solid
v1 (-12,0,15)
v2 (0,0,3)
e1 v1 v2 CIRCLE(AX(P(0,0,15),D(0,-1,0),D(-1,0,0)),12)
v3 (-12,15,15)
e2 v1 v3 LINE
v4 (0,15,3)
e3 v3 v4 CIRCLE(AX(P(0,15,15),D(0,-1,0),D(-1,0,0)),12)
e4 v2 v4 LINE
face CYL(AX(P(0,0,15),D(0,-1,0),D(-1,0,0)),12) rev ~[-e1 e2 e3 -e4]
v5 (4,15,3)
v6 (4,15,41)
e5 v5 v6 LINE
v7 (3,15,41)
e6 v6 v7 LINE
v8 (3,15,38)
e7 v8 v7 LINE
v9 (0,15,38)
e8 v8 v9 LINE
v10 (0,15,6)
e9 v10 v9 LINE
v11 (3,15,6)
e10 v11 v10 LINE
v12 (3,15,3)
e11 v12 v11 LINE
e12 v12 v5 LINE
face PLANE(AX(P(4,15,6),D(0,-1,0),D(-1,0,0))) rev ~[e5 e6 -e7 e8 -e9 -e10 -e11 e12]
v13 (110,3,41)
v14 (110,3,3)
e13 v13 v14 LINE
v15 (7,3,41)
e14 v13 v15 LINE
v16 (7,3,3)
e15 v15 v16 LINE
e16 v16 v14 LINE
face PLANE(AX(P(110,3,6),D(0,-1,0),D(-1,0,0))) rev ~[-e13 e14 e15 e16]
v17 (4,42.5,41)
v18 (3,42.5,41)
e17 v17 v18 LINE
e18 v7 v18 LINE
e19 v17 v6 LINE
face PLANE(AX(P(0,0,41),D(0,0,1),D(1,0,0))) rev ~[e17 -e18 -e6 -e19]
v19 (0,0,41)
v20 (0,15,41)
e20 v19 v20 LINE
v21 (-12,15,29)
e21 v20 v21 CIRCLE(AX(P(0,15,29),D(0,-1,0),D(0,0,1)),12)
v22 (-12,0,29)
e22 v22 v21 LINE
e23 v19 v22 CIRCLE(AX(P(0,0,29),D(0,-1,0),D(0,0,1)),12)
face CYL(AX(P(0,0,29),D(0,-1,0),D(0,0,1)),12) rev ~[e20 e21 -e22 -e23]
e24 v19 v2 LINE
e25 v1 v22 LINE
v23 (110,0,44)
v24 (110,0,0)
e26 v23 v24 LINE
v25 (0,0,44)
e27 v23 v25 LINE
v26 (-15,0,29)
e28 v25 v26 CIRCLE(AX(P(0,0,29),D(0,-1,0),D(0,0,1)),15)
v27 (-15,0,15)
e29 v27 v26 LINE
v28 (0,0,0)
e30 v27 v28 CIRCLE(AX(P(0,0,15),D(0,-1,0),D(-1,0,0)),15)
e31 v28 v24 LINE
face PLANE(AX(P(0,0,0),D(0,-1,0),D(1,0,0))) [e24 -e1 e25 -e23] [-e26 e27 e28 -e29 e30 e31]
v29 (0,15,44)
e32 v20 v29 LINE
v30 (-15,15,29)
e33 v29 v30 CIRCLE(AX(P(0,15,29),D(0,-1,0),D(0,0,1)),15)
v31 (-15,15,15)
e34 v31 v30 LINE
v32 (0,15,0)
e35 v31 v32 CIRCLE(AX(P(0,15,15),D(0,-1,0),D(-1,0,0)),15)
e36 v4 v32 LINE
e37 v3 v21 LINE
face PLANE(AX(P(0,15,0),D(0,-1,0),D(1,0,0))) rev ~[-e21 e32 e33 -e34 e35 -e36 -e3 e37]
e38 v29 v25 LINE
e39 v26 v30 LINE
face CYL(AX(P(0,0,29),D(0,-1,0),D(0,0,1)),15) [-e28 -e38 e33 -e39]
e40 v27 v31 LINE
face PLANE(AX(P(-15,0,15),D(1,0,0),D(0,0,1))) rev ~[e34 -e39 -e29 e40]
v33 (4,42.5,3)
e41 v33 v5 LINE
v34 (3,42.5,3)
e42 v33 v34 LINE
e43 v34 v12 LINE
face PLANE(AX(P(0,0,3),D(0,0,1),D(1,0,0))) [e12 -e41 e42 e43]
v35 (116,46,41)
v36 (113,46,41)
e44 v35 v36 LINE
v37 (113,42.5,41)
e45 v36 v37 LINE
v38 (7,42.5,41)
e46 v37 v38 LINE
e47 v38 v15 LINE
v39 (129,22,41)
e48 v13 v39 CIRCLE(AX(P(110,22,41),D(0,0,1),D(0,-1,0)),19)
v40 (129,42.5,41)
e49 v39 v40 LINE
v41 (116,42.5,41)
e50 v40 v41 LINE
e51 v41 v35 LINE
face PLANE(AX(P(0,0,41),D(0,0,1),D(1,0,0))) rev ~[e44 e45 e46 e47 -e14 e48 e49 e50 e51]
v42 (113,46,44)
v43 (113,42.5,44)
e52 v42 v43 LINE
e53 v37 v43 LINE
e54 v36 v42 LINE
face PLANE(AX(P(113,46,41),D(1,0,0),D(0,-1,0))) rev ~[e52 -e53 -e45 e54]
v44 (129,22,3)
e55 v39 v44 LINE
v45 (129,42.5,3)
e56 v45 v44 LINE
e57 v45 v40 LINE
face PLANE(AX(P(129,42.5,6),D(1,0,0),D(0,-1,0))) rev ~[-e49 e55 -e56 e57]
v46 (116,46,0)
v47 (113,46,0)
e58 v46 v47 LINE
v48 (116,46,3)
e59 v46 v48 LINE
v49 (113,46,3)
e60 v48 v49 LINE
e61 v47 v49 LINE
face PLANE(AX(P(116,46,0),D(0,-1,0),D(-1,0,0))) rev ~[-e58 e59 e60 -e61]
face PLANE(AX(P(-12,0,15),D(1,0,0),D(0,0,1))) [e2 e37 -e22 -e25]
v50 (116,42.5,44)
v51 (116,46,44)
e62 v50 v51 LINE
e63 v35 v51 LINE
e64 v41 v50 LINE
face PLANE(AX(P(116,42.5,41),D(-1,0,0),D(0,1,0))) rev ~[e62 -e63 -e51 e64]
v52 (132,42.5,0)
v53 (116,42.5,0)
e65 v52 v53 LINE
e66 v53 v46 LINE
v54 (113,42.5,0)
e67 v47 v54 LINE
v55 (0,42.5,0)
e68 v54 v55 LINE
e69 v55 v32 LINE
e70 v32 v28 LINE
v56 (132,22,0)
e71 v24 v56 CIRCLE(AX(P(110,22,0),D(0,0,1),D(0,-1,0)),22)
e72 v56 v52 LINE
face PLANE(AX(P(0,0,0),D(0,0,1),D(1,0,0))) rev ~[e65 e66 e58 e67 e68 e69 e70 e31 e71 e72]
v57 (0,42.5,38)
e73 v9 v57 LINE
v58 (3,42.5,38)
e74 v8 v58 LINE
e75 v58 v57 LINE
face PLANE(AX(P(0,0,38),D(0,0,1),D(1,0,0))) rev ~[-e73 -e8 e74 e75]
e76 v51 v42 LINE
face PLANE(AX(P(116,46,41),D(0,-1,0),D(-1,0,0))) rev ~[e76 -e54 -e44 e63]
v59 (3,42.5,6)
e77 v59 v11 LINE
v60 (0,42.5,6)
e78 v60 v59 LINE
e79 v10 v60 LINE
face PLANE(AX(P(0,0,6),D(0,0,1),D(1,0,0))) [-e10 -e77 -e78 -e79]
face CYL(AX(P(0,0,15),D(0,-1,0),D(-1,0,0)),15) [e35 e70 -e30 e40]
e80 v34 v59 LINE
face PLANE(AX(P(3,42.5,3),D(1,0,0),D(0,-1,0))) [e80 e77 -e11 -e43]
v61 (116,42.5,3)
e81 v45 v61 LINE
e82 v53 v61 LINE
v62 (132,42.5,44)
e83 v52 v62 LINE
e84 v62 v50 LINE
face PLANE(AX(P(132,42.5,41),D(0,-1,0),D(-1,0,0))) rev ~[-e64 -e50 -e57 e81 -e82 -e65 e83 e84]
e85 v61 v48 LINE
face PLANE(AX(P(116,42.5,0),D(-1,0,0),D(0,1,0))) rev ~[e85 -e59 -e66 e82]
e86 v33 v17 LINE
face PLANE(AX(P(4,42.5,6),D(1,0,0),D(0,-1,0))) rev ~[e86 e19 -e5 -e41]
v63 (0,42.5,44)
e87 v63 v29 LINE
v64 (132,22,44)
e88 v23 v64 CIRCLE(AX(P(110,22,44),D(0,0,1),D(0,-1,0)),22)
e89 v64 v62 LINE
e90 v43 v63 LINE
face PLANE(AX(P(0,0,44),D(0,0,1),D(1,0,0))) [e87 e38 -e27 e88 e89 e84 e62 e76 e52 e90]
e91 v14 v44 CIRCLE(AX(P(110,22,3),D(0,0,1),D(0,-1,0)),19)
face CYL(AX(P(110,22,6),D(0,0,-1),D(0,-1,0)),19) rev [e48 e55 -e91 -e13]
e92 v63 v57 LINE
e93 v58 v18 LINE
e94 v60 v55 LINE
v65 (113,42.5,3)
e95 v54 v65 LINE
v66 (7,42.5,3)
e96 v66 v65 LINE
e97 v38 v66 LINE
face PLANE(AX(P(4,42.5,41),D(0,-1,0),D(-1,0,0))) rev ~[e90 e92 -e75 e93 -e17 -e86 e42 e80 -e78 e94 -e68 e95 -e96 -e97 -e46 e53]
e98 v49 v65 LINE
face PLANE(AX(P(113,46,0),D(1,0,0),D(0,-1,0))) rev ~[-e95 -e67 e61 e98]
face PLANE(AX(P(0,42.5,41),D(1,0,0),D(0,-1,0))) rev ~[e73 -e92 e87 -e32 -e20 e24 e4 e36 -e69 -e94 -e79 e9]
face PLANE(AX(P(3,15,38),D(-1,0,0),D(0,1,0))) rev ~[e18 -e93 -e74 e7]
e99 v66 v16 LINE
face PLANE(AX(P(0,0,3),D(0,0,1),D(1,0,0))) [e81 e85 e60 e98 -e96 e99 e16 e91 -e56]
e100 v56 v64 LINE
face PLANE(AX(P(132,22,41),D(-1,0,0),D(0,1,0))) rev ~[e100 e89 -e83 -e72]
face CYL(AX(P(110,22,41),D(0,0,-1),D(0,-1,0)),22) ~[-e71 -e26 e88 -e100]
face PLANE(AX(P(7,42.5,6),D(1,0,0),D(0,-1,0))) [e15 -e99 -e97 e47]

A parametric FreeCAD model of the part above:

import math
import FreeCAD as App
import Part
import Sketcher
from FreeCAD import Vector

doc = App.newDocument("Part")
body = doc.addObject("PartDesign::Body", "Body")

# Sketch on XY plane
sketch1 = body.newObject("Sketcher::SketchObject", "Sketch")
sketch1.AttachmentSupport = (doc.getObject("XY_Plane"), [""])
sketch1.MapMode = "FlatFace"
sketch1.addGeometry([
    Part.LineSegment(Vector(0, 42.5, 0), Vector(0, 0, 0)),  # 0
    Part.LineSegment(Vector(0, 0, 0), Vector(110, 0, 0)),  # 1
    Part.ArcOfCircle(Part.Circle(Vector(110, 22, 0), Vector(0, 0, 1), 22), math.radians(-90), math.radians(0)),  # 2
    Part.LineSegment(Vector(132, 22, 0), Vector(132, 42.5, 0)),  # 3
    Part.LineSegment(Vector(132, 42.5, 0), Vector(116, 42.5, 0)),  # 4
    Part.LineSegment(Vector(116, 42.5, 0), Vector(116, 46, 0)),  # 5
    Part.LineSegment(Vector(116, 46, 0), Vector(113, 46, 0)),  # 6
    Part.LineSegment(Vector(113, 46, 0), Vector(113, 42.5, 0)),  # 7
    Part.LineSegment(Vector(113, 42.5, 0), Vector(0, 42.5, 0)),  # 8
], False)
sketch1.addConstraint([
    Sketcher.Constraint("Coincident", 0, 2, 1, 1),
    Sketcher.Constraint("Tangent", 1, 2, 2, 1),
    Sketcher.Constraint("Tangent", 2, 2, 3, 1),
    Sketcher.Constraint("Coincident", 3, 2, 4, 1),
    Sketcher.Constraint("Coincident", 4, 2, 5, 1),
    Sketcher.Constraint("Coincident", 5, 2, 6, 1),
    Sketcher.Constraint("Coincident", 6, 2, 7, 1),
    Sketcher.Constraint("Coincident", 7, 2, 8, 1),
    Sketcher.Constraint("Coincident", 8, 2, 0, 1),
    Sketcher.Constraint("Vertical", 0),
    Sketcher.Constraint("Horizontal", 1),
    Sketcher.Constraint("Vertical", 3),
    Sketcher.Constraint("Horizontal", 4),
    Sketcher.Constraint("Vertical", 5),
    Sketcher.Constraint("Horizontal", 6),
    Sketcher.Constraint("Vertical", 7),
    Sketcher.Constraint("Horizontal", 8),
    Sketcher.Constraint("Coincident", 0, 2, -1, 1),
    Sketcher.Constraint("Horizontal", 4, 2, 7, 2),
    Sketcher.Constraint("Radius", 2, 22.0),
    Sketcher.Constraint("DistanceX", 1, 1, 1, 2, 110.0),
    Sketcher.Constraint("DistanceX", 4, 2, 4, 1, 16.0),
    Sketcher.Constraint("DistanceX", 6, 2, 6, 1, 3.0),
    Sketcher.Constraint("DistanceY", 3, 1, 3, 2, 20.5),
    Sketcher.Constraint("DistanceY", 5, 1, 5, 2, 3.5),
])
pad1 = body.newObject("PartDesign::Pad", "Pad")
pad1.Profile = sketch1
pad1.Length = 3

# Sketch on XY plane
sketch2 = body.newObject("Sketcher::SketchObject", "Sketch001")
sketch2.AttachmentSupport = (doc.getObject("XY_Plane"), [""])
sketch2.MapMode = "FlatFace"
sketch2.AttachmentOffset = App.Placement(Vector(0, 0, 3), App.Rotation())
sketch2.addGeometry([
    Part.LineSegment(Vector(3, 42.5, 0), Vector(0, 42.5, 0)),  # 0
    Part.LineSegment(Vector(0, 42.5, 0), Vector(0, 0, 0)),  # 1
    Part.LineSegment(Vector(0, 0, 0), Vector(110, 0, 0)),  # 2
    Part.ArcOfCircle(Part.Circle(Vector(110, 22, 0), Vector(0, 0, 1), 22), math.radians(-90), math.radians(0)),  # 3
    Part.LineSegment(Vector(132, 22, 0), Vector(132, 42.5, 0)),  # 4
    Part.LineSegment(Vector(132, 42.5, 0), Vector(129, 42.5, 0)),  # 5
    Part.LineSegment(Vector(129, 42.5, 0), Vector(129, 22, 0)),  # 6
    Part.ArcOfCircle(Part.Circle(Vector(110, 22, 0), Vector(0, 0, 1), 19), math.radians(-90), math.radians(0)),  # 7
    Part.LineSegment(Vector(110, 3, 0), Vector(7, 3, 0)),  # 8
    Part.LineSegment(Vector(7, 3, 0), Vector(7, 42.5, 0)),  # 9
    Part.LineSegment(Vector(7, 42.5, 0), Vector(4, 42.5, 0)),  # 10
    Part.LineSegment(Vector(4, 42.5, 0), Vector(4, 15, 0)),  # 11
    Part.LineSegment(Vector(4, 15, 0), Vector(3, 15, 0)),  # 12
    Part.LineSegment(Vector(3, 15, 0), Vector(3, 42.5, 0)),  # 13
], False)
sketch2.addConstraint([
    Sketcher.Constraint("Coincident", 0, 2, 1, 1),
    Sketcher.Constraint("Coincident", 1, 2, 2, 1),
    Sketcher.Constraint("Tangent", 2, 2, 3, 1),
    Sketcher.Constraint("Tangent", 3, 2, 4, 1),
    Sketcher.Constraint("Coincident", 4, 2, 5, 1),
    Sketcher.Constraint("Coincident", 5, 2, 6, 1),
    Sketcher.Constraint("Tangent", 6, 2, 7, 2),
    Sketcher.Constraint("Tangent", 7, 1, 8, 1),
    Sketcher.Constraint("Coincident", 8, 2, 9, 1),
    Sketcher.Constraint("Coincident", 9, 2, 10, 1),
    Sketcher.Constraint("Coincident", 10, 2, 11, 1),
    Sketcher.Constraint("Coincident", 11, 2, 12, 1),
    Sketcher.Constraint("Coincident", 12, 2, 13, 1),
    Sketcher.Constraint("Coincident", 13, 2, 0, 1),
    Sketcher.Constraint("Horizontal", 0),
    Sketcher.Constraint("Vertical", 1),
    Sketcher.Constraint("Horizontal", 2),
    Sketcher.Constraint("Vertical", 4),
    Sketcher.Constraint("Horizontal", 5),
    Sketcher.Constraint("Vertical", 6),
    Sketcher.Constraint("Horizontal", 8),
    Sketcher.Constraint("Vertical", 9),
    Sketcher.Constraint("Horizontal", 10),
    Sketcher.Constraint("Vertical", 11),
    Sketcher.Constraint("Horizontal", 12),
    Sketcher.Constraint("Vertical", 13),
    Sketcher.Constraint("Coincident", 1, 2, -1, 1),
    Sketcher.Constraint("Coincident", 7, 3, 3, 3),
    Sketcher.Constraint("Horizontal", 0, 2, 4, 2),
    Sketcher.Constraint("Horizontal", 5, 2, 9, 2),
    Sketcher.Constraint("Equal", 0, 5),
    Sketcher.Constraint("Equal", 5, 10),
    Sketcher.Constraint("DistanceX", 0, 2, 0, 1, 3.0),
    Sketcher.Constraint("DistanceX", 8, 2, 8, 1, 103.0),
    Sketcher.Constraint("DistanceX", 12, 2, 12, 1, 1.0),
    Sketcher.Constraint("DistanceY", 4, 1, 4, 2, 20.5),
    Sketcher.Constraint("DistanceY", 11, 2, 11, 1, 27.5),
    Sketcher.Constraint("Radius", 3, 22.0),
])
pad2 = body.newObject("PartDesign::Pad", "Pad001")
pad2.Profile = sketch2
pad2.Length = 3

# Sketch on XY plane
sketch3 = body.newObject("Sketcher::SketchObject", "Sketch002")
sketch3.AttachmentSupport = (doc.getObject("XY_Plane"), [""])
sketch3.MapMode = "FlatFace"
sketch3.AttachmentOffset = App.Placement(Vector(0, 0, 6), App.Rotation())
sketch3.addGeometry([
    Part.LineSegment(Vector(7, 42.5, 0), Vector(4, 42.5, 0)),  # 0
    Part.LineSegment(Vector(4, 42.5, 0), Vector(4, 15, 0)),  # 1
    Part.LineSegment(Vector(4, 15, 0), Vector(0, 15, 0)),  # 2
    Part.LineSegment(Vector(0, 15, 0), Vector(0, 0, 0)),  # 3
    Part.LineSegment(Vector(0, 0, 0), Vector(110, 0, 0)),  # 4
    Part.ArcOfCircle(Part.Circle(Vector(110, 22, 0), Vector(0, 0, 1), 22), math.radians(-90), math.radians(0)),  # 5
    Part.LineSegment(Vector(132, 22, 0), Vector(132, 42.5, 0)),  # 6
    Part.LineSegment(Vector(132, 42.5, 0), Vector(129, 42.5, 0)),  # 7
    Part.LineSegment(Vector(129, 42.5, 0), Vector(129, 22, 0)),  # 8
    Part.ArcOfCircle(Part.Circle(Vector(110, 22, 0), Vector(0, 0, 1), 19), math.radians(-90), math.radians(0)),  # 9
    Part.LineSegment(Vector(110, 3, 0), Vector(7, 3, 0)),  # 10
    Part.LineSegment(Vector(7, 3, 0), Vector(7, 42.5, 0)),  # 11
], False)
sketch3.addConstraint([
    Sketcher.Constraint("Coincident", 0, 2, 1, 1),
    Sketcher.Constraint("Coincident", 1, 2, 2, 1),
    Sketcher.Constraint("Coincident", 2, 2, 3, 1),
    Sketcher.Constraint("Coincident", 3, 2, 4, 1),
    Sketcher.Constraint("Tangent", 4, 2, 5, 1),
    Sketcher.Constraint("Tangent", 5, 2, 6, 1),
    Sketcher.Constraint("Coincident", 6, 2, 7, 1),
    Sketcher.Constraint("Coincident", 7, 2, 8, 1),
    Sketcher.Constraint("Tangent", 8, 2, 9, 2),
    Sketcher.Constraint("Tangent", 9, 1, 10, 1),
    Sketcher.Constraint("Coincident", 10, 2, 11, 1),
    Sketcher.Constraint("Coincident", 11, 2, 0, 1),
    Sketcher.Constraint("Horizontal", 0),
    Sketcher.Constraint("Vertical", 1),
    Sketcher.Constraint("Horizontal", 2),
    Sketcher.Constraint("Vertical", 3),
    Sketcher.Constraint("Horizontal", 4),
    Sketcher.Constraint("Vertical", 6),
    Sketcher.Constraint("Horizontal", 7),
    Sketcher.Constraint("Vertical", 8),
    Sketcher.Constraint("Horizontal", 10),
    Sketcher.Constraint("Vertical", 11),
    Sketcher.Constraint("Coincident", 3, 2, -1, 1),
    Sketcher.Constraint("Coincident", 9, 3, 5, 3),
    Sketcher.Constraint("Horizontal", 0, 2, 6, 2),
    Sketcher.Constraint("Equal", 0, 7),
    Sketcher.Constraint("Radius", 5, 22.0),
    Sketcher.Constraint("Radius", 9, 19.0),
    Sketcher.Constraint("DistanceX", 2, 2, 2, 1, 4.0),
    Sketcher.Constraint("DistanceX", 4, 1, 4, 2, 110.0),
    Sketcher.Constraint("DistanceY", 3, 2, 3, 1, 15.0),
    Sketcher.Constraint("DistanceY", 1, 2, 1, 1, 27.5),
])
pad3 = body.newObject("PartDesign::Pad", "Pad002")
pad3.Profile = sketch3
pad3.Length = 32

# Sketch on XY plane
sketch4 = body.newObject("Sketcher::SketchObject", "Sketch003")
sketch4.AttachmentSupport = (doc.getObject("XY_Plane"), [""])
sketch4.MapMode = "FlatFace"
sketch4.AttachmentOffset = App.Placement(Vector(0, 0, 38), App.Rotation())
sketch4.addGeometry([
    Part.ArcOfCircle(Part.Circle(Vector(110, 22, 0), Vector(0, 0, 1), 19), math.radians(-90), math.radians(0)),  # 0
    Part.LineSegment(Vector(110, 3, 0), Vector(7, 3, 0)),  # 1
    Part.LineSegment(Vector(7, 3, 0), Vector(7, 42.5, 0)),  # 2
    Part.LineSegment(Vector(7, 42.5, 0), Vector(4, 42.5, 0)),  # 3
    Part.LineSegment(Vector(4, 42.5, 0), Vector(4, 15, 0)),  # 4
    Part.LineSegment(Vector(4, 15, 0), Vector(3, 15, 0)),  # 5
    Part.LineSegment(Vector(3, 15, 0), Vector(3, 42.5, 0)),  # 6
    Part.LineSegment(Vector(3, 42.5, 0), Vector(0, 42.5, 0)),  # 7
    Part.LineSegment(Vector(0, 42.5, 0), Vector(0, 0, 0)),  # 8
    Part.LineSegment(Vector(0, 0, 0), Vector(110, 0, 0)),  # 9
    Part.ArcOfCircle(Part.Circle(Vector(110, 22, 0), Vector(0, 0, 1), 22), math.radians(-90), math.radians(0)),  # 10
    Part.LineSegment(Vector(132, 22, 0), Vector(132, 42.5, 0)),  # 11
    Part.LineSegment(Vector(132, 42.5, 0), Vector(129, 42.5, 0)),  # 12
    Part.LineSegment(Vector(129, 42.5, 0), Vector(129, 22, 0)),  # 13
], False)
sketch4.addConstraint([
    Sketcher.Constraint("Tangent", 0, 1, 1, 1),
    Sketcher.Constraint("Coincident", 1, 2, 2, 1),
    Sketcher.Constraint("Coincident", 2, 2, 3, 1),
    Sketcher.Constraint("Coincident", 3, 2, 4, 1),
    Sketcher.Constraint("Coincident", 4, 2, 5, 1),
    Sketcher.Constraint("Coincident", 5, 2, 6, 1),
    Sketcher.Constraint("Coincident", 6, 2, 7, 1),
    Sketcher.Constraint("Coincident", 7, 2, 8, 1),
    Sketcher.Constraint("Coincident", 8, 2, 9, 1),
    Sketcher.Constraint("Tangent", 9, 2, 10, 1),
    Sketcher.Constraint("Tangent", 10, 2, 11, 1),
    Sketcher.Constraint("Coincident", 11, 2, 12, 1),
    Sketcher.Constraint("Coincident", 12, 2, 13, 1),
    Sketcher.Constraint("Tangent", 13, 2, 0, 2),
    Sketcher.Constraint("Horizontal", 1),
    Sketcher.Constraint("Vertical", 2),
    Sketcher.Constraint("Horizontal", 3),
    Sketcher.Constraint("Vertical", 4),
    Sketcher.Constraint("Horizontal", 5),
    Sketcher.Constraint("Vertical", 6),
    Sketcher.Constraint("Horizontal", 7),
    Sketcher.Constraint("Vertical", 8),
    Sketcher.Constraint("Horizontal", 9),
    Sketcher.Constraint("Vertical", 11),
    Sketcher.Constraint("Horizontal", 12),
    Sketcher.Constraint("Vertical", 13),
    Sketcher.Constraint("Coincident", 8, 2, -1, 1),
    Sketcher.Constraint("Coincident", 10, 3, 0, 3),
    Sketcher.Constraint("Horizontal", 3, 2, 6, 2),
    Sketcher.Constraint("Horizontal", 7, 2, 11, 2),
    Sketcher.Constraint("Equal", 3, 7),
    Sketcher.Constraint("Equal", 7, 12),
    Sketcher.Constraint("DistanceX", 3, 2, 3, 1, 3.0),
    Sketcher.Constraint("Radius", 0, 19.0),
    Sketcher.Constraint("DistanceX", 1, 2, 1, 1, 103.0),
    Sketcher.Constraint("DistanceX", 5, 2, 5, 1, 1.0),
    Sketcher.Constraint("DistanceY", 2, 1, 2, 2, 39.5),
    Sketcher.Constraint("DistanceY", 4, 2, 4, 1, 27.5),
])
pad4 = body.newObject("PartDesign::Pad", "Pad003")
pad4.Profile = sketch4
pad4.Length = 3

# Sketch on XY plane
sketch5 = body.newObject("Sketcher::SketchObject", "Sketch004")
sketch5.AttachmentSupport = (doc.getObject("XY_Plane"), [""])
sketch5.MapMode = "FlatFace"
sketch5.AttachmentOffset = App.Placement(Vector(0, 0, 41), App.Rotation())
sketch5.addGeometry([
    Part.ArcOfCircle(Part.Circle(Vector(110, 22, 0), Vector(0, 0, 1), 22), math.radians(-90), math.radians(0)),  # 0
    Part.LineSegment(Vector(132, 22, 0), Vector(132, 42.5, 0)),  # 1
    Part.LineSegment(Vector(132, 42.5, 0), Vector(116, 42.5, 0)),  # 2
    Part.LineSegment(Vector(116, 42.5, 0), Vector(116, 46, 0)),  # 3
    Part.LineSegment(Vector(116, 46, 0), Vector(113, 46, 0)),  # 4
    Part.LineSegment(Vector(113, 46, 0), Vector(113, 42.5, 0)),  # 5
    Part.LineSegment(Vector(113, 42.5, 0), Vector(0, 42.5, 0)),  # 6
    Part.LineSegment(Vector(0, 42.5, 0), Vector(0, 0, 0)),  # 7
    Part.LineSegment(Vector(0, 0, 0), Vector(110, 0, 0)),  # 8
], False)
sketch5.addConstraint([
    Sketcher.Constraint("Tangent", 0, 2, 1, 1),
    Sketcher.Constraint("Coincident", 1, 2, 2, 1),
    Sketcher.Constraint("Coincident", 2, 2, 3, 1),
    Sketcher.Constraint("Coincident", 3, 2, 4, 1),
    Sketcher.Constraint("Coincident", 4, 2, 5, 1),
    Sketcher.Constraint("Coincident", 5, 2, 6, 1),
    Sketcher.Constraint("Coincident", 6, 2, 7, 1),
    Sketcher.Constraint("Coincident", 7, 2, 8, 1),
    Sketcher.Constraint("Tangent", 8, 2, 0, 1),
    Sketcher.Constraint("Vertical", 1),
    Sketcher.Constraint("Horizontal", 2),
    Sketcher.Constraint("Vertical", 3),
    Sketcher.Constraint("Horizontal", 4),
    Sketcher.Constraint("Vertical", 5),
    Sketcher.Constraint("Horizontal", 6),
    Sketcher.Constraint("Vertical", 7),
    Sketcher.Constraint("Horizontal", 8),
    Sketcher.Constraint("Coincident", 7, 2, -1, 1),
    Sketcher.Constraint("Horizontal", 2, 2, 5, 2),
    Sketcher.Constraint("Radius", 0, 22.0),
    Sketcher.Constraint("DistanceX", 4, 2, 4, 1, 3.0),
    Sketcher.Constraint("DistanceY", 1, 1, 1, 2, 20.5),
    Sketcher.Constraint("DistanceX", 0, 3, 4, 2, 3.0),
    Sketcher.Constraint("DistanceX", 6, 2, 6, 1, 113.0),
    Sketcher.Constraint("DistanceY", 3, 1, 3, 2, 3.5),
])
pad5 = body.newObject("PartDesign::Pad", "Pad004")
pad5.Profile = sketch5
pad5.Length = 3

# Sketch on XZ plane
sketch6 = body.newObject("Sketcher::SketchObject", "Sketch005")
sketch6.AttachmentSupport = (doc.getObject("XZ_Plane"), [""])
sketch6.MapMode = "FlatFace"
sketch6.addGeometry([
    Part.LineSegment(Vector(0, 0, 0), Vector(0, 3, 0)),  # 0
    Part.ArcOfCircle(Part.Circle(Vector(0, 15, 0), Vector(0, 0, 1), 12), math.radians(180), math.radians(270)),  # 1
    Part.LineSegment(Vector(-12, 15, 0), Vector(-12, 29, 0)),  # 2
    Part.ArcOfCircle(Part.Circle(Vector(0, 29, 0), Vector(0, 0, 1), 12), math.radians(90), math.radians(180)),  # 3
    Part.LineSegment(Vector(0, 41, 0), Vector(0, 44, 0)),  # 4
    Part.ArcOfCircle(Part.Circle(Vector(0, 29, 0), Vector(0, 0, 1), 15), math.radians(90), math.radians(180)),  # 5
    Part.LineSegment(Vector(-15, 29, 0), Vector(-15, 15, 0)),  # 6
    Part.ArcOfCircle(Part.Circle(Vector(0, 15, 0), Vector(0, 0, 1), 15), math.radians(180), math.radians(270)),  # 7
], False)
sketch6.addConstraint([
    Sketcher.Constraint("Coincident", 0, 2, 1, 2),
    Sketcher.Constraint("Tangent", 1, 1, 2, 1),
    Sketcher.Constraint("Tangent", 2, 2, 3, 2),
    Sketcher.Constraint("Coincident", 3, 1, 4, 1),
    Sketcher.Constraint("Coincident", 4, 2, 5, 1),
    Sketcher.Constraint("Tangent", 5, 2, 6, 1),
    Sketcher.Constraint("Tangent", 6, 2, 7, 1),
    Sketcher.Constraint("Coincident", 7, 2, 0, 1),
    Sketcher.Constraint("Vertical", 0),
    Sketcher.Constraint("Vertical", 2),
    Sketcher.Constraint("Vertical", 4),
    Sketcher.Constraint("Vertical", 6),
    Sketcher.Constraint("Coincident", 7, 2, -1, 1),
    Sketcher.Constraint("Coincident", 5, 3, 3, 3),
    Sketcher.Constraint("Coincident", 7, 3, 1, 3),
    Sketcher.Constraint("Equal", 1, 3),
    Sketcher.Constraint("PointOnObject", 1, 3, -2),
    Sketcher.Constraint("PointOnObject", 3, 1, -2),
    Sketcher.Constraint("Radius", 5, 15.0),
    Sketcher.Constraint("DistanceY", 0, 1, 0, 2, 3.0),
    Sketcher.Constraint("DistanceY", 2, 1, 2, 2, 14.0),
])
pad6 = body.newObject("PartDesign::Pad", "Pad005")
pad6.Profile = sketch6
pad6.Length = 15
pad6.Reversed = True

doc.recompute()
